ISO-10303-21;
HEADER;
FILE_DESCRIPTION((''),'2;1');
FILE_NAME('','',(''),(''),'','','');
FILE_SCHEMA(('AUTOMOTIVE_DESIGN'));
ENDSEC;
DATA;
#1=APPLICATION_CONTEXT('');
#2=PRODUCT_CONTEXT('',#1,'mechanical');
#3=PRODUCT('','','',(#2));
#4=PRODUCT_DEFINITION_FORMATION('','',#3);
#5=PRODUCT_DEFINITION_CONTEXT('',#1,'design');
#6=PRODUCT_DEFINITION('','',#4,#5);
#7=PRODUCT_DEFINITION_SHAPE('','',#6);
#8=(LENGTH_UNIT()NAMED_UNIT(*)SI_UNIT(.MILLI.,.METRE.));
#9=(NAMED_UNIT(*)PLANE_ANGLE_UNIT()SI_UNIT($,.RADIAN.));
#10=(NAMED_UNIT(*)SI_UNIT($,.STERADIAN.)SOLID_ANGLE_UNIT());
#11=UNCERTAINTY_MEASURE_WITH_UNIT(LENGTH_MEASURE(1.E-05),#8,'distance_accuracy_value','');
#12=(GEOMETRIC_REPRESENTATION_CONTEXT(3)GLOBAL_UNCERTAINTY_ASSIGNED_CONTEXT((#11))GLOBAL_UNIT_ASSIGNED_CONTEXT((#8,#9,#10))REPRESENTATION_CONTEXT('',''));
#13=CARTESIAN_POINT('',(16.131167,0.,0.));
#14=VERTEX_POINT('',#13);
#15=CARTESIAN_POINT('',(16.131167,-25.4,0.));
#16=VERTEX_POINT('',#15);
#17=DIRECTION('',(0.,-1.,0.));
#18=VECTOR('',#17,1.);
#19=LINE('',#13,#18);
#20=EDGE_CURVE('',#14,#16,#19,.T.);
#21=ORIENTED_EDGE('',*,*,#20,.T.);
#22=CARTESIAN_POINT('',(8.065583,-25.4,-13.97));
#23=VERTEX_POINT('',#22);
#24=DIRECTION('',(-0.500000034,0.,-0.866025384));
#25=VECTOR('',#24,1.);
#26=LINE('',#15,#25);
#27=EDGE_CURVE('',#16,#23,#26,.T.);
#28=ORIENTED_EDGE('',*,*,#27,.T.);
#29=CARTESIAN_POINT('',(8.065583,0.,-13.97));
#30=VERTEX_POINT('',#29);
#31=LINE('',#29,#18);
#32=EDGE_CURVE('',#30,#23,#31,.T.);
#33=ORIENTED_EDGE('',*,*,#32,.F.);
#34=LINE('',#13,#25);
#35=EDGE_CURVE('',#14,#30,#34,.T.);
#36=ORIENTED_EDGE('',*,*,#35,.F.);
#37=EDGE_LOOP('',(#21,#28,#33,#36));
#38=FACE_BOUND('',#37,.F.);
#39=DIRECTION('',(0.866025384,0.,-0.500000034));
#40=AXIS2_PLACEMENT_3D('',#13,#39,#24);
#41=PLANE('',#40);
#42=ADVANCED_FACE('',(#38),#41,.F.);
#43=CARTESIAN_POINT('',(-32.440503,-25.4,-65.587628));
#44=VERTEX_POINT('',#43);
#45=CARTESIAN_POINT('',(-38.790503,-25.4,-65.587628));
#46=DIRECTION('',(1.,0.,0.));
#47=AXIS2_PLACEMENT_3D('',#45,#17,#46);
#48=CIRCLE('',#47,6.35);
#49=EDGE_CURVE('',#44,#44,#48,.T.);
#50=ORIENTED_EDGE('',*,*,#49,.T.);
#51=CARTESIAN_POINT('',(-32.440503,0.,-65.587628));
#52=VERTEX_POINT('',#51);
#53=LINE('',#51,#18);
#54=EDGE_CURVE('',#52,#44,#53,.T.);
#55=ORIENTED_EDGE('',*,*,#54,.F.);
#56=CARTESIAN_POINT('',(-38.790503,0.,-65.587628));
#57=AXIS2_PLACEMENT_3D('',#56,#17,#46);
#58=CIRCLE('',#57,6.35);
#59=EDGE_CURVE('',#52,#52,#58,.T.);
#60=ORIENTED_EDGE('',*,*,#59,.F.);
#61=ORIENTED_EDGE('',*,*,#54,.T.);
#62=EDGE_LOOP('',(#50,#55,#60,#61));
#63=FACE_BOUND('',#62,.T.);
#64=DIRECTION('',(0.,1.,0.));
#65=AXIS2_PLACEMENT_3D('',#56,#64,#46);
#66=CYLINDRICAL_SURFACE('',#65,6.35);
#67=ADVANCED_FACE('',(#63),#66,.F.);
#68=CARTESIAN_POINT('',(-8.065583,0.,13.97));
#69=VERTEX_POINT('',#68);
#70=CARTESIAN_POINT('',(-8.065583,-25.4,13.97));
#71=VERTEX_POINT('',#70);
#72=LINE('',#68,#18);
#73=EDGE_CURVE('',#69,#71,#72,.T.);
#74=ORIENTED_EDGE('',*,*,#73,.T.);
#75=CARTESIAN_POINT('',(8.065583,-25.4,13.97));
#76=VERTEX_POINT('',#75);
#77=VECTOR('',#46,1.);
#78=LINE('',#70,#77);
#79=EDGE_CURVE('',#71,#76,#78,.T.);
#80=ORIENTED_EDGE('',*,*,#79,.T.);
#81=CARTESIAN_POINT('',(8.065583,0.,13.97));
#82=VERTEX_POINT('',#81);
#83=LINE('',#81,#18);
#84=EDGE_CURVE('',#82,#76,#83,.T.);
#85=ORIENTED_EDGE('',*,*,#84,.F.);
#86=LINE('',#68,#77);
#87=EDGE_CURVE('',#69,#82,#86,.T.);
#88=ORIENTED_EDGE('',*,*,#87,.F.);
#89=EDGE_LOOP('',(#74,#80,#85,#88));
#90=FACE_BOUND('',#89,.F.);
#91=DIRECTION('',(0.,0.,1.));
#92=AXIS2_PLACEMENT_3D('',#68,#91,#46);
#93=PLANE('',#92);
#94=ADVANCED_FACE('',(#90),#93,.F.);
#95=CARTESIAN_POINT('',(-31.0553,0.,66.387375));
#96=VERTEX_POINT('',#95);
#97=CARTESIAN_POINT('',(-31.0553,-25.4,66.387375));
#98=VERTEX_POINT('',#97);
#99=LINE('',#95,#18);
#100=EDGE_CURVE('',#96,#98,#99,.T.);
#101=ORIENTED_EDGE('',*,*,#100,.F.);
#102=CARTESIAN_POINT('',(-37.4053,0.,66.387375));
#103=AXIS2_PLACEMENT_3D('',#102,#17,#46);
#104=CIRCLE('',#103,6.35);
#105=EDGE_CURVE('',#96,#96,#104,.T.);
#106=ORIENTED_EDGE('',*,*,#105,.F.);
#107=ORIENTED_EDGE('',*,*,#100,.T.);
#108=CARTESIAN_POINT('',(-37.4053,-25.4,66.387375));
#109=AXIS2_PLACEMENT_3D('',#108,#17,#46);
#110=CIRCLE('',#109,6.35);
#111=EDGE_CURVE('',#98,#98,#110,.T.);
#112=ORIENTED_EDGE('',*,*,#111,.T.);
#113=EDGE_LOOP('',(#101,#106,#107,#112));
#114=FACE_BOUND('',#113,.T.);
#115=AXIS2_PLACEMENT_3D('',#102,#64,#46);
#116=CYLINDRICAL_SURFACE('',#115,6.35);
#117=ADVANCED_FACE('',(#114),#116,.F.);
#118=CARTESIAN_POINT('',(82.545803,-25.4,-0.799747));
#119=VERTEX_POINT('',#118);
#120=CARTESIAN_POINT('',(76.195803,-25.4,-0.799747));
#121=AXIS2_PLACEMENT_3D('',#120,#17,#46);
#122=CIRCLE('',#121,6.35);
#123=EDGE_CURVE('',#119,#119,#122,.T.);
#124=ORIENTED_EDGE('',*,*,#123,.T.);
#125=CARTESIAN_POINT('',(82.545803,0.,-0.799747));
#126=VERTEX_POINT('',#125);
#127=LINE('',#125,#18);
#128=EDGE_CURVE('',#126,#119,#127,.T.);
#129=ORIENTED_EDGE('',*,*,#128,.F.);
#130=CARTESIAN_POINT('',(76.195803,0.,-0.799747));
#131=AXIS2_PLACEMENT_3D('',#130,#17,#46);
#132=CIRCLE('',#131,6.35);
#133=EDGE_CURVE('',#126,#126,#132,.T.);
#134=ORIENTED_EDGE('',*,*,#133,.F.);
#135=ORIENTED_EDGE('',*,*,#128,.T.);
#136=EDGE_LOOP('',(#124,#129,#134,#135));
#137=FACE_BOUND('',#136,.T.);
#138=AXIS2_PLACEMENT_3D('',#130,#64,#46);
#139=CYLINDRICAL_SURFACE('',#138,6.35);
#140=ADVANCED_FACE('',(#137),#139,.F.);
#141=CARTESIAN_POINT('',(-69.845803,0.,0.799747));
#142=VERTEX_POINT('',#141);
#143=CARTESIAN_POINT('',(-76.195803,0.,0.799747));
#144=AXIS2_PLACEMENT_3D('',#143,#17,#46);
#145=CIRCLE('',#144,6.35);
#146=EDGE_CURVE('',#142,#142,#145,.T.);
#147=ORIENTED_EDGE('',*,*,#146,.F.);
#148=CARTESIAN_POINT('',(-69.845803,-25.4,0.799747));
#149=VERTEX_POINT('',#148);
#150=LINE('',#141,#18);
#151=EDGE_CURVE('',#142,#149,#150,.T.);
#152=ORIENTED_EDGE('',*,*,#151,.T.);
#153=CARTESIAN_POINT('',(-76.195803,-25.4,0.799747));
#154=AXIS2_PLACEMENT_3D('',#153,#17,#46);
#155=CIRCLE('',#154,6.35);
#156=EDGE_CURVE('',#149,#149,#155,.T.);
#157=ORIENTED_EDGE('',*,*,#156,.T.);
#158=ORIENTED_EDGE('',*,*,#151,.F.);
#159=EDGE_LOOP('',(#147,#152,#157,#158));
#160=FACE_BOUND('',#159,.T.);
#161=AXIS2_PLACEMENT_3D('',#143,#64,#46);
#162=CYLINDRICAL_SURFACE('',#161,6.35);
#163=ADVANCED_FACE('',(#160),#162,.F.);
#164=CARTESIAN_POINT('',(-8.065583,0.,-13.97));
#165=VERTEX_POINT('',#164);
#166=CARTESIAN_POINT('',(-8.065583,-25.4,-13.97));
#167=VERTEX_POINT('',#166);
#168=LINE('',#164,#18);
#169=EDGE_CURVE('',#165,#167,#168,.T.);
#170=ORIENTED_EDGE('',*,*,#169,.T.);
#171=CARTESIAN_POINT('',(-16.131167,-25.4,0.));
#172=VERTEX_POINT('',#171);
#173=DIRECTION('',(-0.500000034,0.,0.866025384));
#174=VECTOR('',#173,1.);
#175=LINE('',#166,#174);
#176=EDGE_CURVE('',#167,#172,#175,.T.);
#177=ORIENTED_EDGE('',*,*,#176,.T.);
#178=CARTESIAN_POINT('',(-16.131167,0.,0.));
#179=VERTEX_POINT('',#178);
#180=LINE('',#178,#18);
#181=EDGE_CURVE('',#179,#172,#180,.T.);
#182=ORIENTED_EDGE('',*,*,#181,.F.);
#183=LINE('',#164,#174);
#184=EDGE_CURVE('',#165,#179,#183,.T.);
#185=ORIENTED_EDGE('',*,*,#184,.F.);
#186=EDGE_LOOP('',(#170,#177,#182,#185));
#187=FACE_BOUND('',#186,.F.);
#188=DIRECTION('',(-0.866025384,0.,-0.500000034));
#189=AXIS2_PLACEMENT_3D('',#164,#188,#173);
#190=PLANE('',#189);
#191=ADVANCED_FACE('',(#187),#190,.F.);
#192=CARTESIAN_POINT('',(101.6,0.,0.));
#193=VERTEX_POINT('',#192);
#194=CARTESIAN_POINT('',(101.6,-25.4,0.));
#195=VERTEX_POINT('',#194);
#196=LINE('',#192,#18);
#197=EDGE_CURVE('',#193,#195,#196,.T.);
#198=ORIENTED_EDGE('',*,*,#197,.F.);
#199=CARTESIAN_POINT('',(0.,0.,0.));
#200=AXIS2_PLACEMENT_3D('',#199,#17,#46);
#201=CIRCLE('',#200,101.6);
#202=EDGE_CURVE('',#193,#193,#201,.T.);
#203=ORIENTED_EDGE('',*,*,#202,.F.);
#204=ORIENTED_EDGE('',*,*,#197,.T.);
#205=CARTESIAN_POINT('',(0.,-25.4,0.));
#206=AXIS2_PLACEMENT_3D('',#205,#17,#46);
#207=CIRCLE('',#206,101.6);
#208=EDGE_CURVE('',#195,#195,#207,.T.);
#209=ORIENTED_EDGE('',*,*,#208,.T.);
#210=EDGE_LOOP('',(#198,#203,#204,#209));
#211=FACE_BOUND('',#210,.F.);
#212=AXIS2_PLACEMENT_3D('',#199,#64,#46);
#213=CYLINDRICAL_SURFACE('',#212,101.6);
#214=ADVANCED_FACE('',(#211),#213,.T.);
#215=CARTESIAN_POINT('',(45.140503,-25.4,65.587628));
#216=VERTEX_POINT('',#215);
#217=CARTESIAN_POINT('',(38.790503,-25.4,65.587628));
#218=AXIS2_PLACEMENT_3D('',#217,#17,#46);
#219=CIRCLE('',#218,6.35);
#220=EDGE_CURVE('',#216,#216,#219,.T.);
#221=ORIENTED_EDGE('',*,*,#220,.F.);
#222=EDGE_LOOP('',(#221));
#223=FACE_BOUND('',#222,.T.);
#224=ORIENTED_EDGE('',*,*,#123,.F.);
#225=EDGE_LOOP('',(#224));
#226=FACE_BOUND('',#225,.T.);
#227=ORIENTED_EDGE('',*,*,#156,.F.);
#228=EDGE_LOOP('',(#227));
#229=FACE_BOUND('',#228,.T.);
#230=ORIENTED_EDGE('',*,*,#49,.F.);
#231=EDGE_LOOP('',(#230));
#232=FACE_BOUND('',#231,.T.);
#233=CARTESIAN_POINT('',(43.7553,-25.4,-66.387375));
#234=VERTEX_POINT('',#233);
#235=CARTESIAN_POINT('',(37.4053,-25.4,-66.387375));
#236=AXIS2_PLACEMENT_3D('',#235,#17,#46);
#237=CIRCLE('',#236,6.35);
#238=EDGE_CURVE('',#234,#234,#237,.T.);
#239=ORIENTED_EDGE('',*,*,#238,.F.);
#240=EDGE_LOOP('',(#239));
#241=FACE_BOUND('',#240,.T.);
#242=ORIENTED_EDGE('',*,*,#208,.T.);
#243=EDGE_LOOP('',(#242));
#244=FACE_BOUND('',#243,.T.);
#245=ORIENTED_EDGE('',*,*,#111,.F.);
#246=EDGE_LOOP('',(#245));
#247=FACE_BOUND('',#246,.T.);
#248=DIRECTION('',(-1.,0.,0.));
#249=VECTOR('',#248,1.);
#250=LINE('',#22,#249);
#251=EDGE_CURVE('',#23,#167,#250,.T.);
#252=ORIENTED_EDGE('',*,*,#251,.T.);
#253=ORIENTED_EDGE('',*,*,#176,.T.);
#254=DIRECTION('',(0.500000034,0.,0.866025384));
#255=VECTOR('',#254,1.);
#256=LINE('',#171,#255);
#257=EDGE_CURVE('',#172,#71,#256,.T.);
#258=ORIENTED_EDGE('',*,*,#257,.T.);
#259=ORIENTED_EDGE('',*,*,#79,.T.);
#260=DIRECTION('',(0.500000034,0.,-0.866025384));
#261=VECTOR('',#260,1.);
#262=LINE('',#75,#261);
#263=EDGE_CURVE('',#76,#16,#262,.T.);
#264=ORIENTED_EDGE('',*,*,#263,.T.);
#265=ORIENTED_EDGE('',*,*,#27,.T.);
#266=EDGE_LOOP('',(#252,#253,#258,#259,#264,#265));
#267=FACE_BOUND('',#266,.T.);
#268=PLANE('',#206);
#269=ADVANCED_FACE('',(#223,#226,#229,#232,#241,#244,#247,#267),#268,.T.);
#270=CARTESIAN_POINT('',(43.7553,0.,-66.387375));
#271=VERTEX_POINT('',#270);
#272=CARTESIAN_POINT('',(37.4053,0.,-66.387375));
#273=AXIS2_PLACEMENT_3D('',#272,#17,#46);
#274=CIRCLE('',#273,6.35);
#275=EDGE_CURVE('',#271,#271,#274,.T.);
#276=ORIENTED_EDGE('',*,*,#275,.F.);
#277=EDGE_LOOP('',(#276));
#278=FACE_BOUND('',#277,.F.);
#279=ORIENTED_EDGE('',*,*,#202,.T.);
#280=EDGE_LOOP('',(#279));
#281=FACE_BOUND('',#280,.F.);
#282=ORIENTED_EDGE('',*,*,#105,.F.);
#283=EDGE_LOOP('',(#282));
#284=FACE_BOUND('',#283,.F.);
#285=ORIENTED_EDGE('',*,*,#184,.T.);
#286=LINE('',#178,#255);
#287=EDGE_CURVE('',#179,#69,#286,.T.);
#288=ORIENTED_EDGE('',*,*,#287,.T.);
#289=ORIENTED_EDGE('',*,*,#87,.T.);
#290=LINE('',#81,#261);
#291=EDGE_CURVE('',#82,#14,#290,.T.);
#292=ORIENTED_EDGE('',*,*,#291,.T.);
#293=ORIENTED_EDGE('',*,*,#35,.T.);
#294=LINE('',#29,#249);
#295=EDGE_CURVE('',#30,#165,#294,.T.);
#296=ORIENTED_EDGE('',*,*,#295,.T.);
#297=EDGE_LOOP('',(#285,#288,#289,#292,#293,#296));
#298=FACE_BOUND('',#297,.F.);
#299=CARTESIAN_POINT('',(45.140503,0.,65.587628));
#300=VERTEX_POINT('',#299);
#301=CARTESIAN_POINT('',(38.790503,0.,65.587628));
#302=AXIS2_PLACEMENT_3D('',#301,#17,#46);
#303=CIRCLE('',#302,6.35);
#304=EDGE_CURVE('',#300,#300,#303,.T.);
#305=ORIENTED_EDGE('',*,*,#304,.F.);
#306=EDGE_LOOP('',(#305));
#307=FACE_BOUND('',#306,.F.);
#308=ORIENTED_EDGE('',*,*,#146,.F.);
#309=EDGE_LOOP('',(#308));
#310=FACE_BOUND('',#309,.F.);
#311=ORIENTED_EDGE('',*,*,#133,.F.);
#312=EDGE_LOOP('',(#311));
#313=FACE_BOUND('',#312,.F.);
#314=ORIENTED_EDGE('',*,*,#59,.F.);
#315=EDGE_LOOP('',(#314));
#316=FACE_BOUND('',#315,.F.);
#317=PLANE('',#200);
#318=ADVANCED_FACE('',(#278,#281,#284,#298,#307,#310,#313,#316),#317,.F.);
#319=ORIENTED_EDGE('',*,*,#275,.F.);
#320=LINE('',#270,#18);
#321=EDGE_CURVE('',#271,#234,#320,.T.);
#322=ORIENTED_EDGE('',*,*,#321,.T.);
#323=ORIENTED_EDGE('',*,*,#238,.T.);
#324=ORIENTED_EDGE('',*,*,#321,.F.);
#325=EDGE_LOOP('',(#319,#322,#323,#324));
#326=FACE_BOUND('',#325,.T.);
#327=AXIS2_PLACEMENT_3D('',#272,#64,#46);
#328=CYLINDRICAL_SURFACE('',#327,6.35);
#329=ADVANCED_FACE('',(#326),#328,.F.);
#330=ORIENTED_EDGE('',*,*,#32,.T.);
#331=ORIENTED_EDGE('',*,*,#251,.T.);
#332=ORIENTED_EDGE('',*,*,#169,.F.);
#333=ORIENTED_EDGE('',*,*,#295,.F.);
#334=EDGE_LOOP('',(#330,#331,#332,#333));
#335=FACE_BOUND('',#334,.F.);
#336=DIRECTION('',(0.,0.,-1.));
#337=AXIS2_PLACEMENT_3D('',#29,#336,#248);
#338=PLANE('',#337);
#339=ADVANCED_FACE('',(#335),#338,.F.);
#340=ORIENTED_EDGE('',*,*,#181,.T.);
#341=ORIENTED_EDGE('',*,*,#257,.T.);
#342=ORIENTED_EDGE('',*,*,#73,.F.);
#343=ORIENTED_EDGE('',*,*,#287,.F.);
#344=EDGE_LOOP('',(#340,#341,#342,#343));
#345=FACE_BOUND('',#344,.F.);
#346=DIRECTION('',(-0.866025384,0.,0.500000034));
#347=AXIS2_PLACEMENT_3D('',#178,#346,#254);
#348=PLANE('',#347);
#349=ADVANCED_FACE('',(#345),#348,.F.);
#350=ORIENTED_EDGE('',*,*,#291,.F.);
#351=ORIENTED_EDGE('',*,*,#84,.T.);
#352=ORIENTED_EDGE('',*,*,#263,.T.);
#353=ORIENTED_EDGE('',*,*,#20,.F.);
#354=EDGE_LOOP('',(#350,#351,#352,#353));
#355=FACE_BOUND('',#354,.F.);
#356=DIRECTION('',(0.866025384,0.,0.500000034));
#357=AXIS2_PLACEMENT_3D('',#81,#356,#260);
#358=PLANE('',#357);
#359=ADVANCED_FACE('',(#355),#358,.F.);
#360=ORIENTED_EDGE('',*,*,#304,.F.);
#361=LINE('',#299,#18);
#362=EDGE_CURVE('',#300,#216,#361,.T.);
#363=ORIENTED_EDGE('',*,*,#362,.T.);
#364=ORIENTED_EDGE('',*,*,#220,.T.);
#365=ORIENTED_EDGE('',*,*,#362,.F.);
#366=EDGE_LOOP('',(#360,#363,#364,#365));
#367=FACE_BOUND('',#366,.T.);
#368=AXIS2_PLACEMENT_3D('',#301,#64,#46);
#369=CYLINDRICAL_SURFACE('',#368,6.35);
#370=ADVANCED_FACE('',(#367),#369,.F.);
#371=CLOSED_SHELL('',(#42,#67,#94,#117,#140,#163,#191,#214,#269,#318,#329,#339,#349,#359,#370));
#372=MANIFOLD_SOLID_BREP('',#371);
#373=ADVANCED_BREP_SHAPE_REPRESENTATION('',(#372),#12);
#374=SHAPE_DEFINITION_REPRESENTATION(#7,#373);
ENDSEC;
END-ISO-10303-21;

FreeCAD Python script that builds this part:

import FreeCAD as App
import Part
import Sketcher
Q = App.Units.Quantity

doc = App.newDocument("Part")
body = doc.addObject("PartDesign::Body", "Body")

# Sketch on XZ plane
sketch1 = body.newObject("Sketcher::SketchObject", "Sketch")
sketch1.AttachmentSupport = (doc.getObject("XZ_Plane"), [""])
sketch1.MapMode = "FlatFace"
sketch1.addGeometry([
    Part.Circle(App.Vector(0, 0, 0), App.Vector(0, 0, 1), 101.6),  # 0
    Part.Circle(App.Vector(-38.790503, -65.587628, 0), App.Vector(0, 0, 1), 6.35),  # 1
    Part.Circle(App.Vector(37.4053, -66.387375, 0), App.Vector(0, 0, 1), 6.35),  # 2
    Part.Circle(App.Vector(76.195803, -0.799747, 0), App.Vector(0, 0, 1), 6.35),  # 3
    Part.Circle(App.Vector(-76.195803, 0.799747, 0), App.Vector(0, 0, 1), 6.35),  # 4
    Part.Circle(App.Vector(-37.4053, 66.387375, 0), App.Vector(0, 0, 1), 6.35),  # 5
    Part.LineSegment(App.Vector(8.065583, 13.97, 0), App.Vector(16.131167, 0, 0)),  # 6
    Part.LineSegment(App.Vector(16.131167, 0, 0), App.Vector(8.065583, -13.97, 0)),  # 7
    Part.LineSegment(App.Vector(8.065583, -13.97, 0), App.Vector(-8.065583, -13.97, 0)),  # 8
    Part.LineSegment(App.Vector(-8.065583, -13.97, 0), App.Vector(-16.131167, 0, 0)),  # 9
    Part.LineSegment(App.Vector(-16.131167, 0, 0), App.Vector(-8.065583, 13.97, 0)),  # 10
    Part.LineSegment(App.Vector(-8.065583, 13.97, 0), App.Vector(8.065583, 13.97, 0)),  # 11
    Part.Circle(App.Vector(38.790503, 65.587628, 0), App.Vector(0, 0, 1), 6.35),  # 12
], False)
sketch1.addConstraint([
    Sketcher.Constraint("Coincident", 6, 2, 7, 1),
    Sketcher.Constraint("Coincident", 7, 2, 8, 1),
    Sketcher.Constraint("Coincident", 8, 2, 9, 1),
    Sketcher.Constraint("Coincident", 9, 2, 10, 1),
    Sketcher.Constraint("Coincident", 10, 2, 11, 1),
    Sketcher.Constraint("Coincident", 11, 2, 6, 1),
    Sketcher.Constraint("Horizontal", 8),
    Sketcher.Constraint("Horizontal", 11),
    Sketcher.Constraint("Coincident", 0, 3, -1, 1),
    Sketcher.Constraint("Equal", 1, 2),
    Sketcher.Constraint("Equal", 2, 3),
    Sketcher.Constraint("Equal", 3, 4),
    Sketcher.Constraint("Equal", 4, 5),
    Sketcher.Constraint("Equal", 5, 12),
    Sketcher.Constraint("Symmetric", 3, 3, 4, 3, -1, 1),
    Sketcher.Constraint("Symmetric", 2, 3, 5, 3, -1, 1),
    Sketcher.Constraint("Symmetric", 1, 3, 12, 3, -1, 1),
    Sketcher.Constraint("Symmetric", 6, 2, 9, 2, -1, 1),
    Sketcher.Constraint("Symmetric", 7, 2, 10, 2, -1, 1),
    Sketcher.Constraint("PointOnObject", 6, 2, -1),
    Sketcher.Constraint("Parallel", 6, 9),
    Sketcher.Constraint("Vertical", 8, 2, 10, 2),
    Sketcher.Constraint("Diameter", 0, Q("8 in")),
    Sketcher.Constraint("Diameter", 1, Q("0.5 in")),
    Sketcher.Constraint("Angle", 6, Q("-59.999998 deg")),
    Sketcher.Constraint("DistanceY", 8, 2, 10, 2, Q("1.1 in")),
    Sketcher.Constraint("DistanceX", 6, 2, 12, 3, Q("0.8920998 in")),
    Sketcher.Constraint("DistanceX", -1, 1, 2, 3, 37.4053),
    Sketcher.Constraint("DistanceX", 4, 3, 1, 3, 37.4053),
    Sketcher.Constraint("DistanceX", 8, 2, 8, 1, 16.131166),
    Sketcher.Constraint("DistanceY", 2, 3, 3, 3, 65.587628),
    Sketcher.Constraint("DistanceY", 1, 3, 3, 3, 64.787881),
    Sketcher.Constraint("DistanceY", 2, 3, 5, 3, 132.77475),
])
pad1 = body.newObject("PartDesign::Pad", "Pad")
pad1.Profile = sketch1
pad1.Length = Q("1 in")

doc.recompute()
